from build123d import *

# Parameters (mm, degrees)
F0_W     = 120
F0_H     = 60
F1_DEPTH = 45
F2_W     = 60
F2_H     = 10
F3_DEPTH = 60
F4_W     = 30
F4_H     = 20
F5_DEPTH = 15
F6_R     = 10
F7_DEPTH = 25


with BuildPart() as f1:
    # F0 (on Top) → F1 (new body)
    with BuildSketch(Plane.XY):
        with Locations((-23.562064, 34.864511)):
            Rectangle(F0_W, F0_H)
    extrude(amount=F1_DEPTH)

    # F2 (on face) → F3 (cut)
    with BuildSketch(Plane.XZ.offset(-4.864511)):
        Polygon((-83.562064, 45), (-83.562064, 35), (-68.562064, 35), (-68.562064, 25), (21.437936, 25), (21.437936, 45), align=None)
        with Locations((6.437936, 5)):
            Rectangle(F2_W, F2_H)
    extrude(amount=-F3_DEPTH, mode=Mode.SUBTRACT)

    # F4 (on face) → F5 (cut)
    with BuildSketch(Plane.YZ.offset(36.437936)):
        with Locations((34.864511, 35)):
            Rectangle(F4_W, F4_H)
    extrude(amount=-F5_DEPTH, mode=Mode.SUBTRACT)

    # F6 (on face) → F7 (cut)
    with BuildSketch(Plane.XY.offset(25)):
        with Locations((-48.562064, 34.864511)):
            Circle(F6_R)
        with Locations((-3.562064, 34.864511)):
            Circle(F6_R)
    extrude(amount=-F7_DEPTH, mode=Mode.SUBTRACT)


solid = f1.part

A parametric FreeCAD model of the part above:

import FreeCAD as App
import Part
import Sketcher
from FreeCAD import Vector


def add_polygon(sketch, points):
    """Adds a closed chain of lines whose ends are joined by coincident constraints."""
    first, n = sketch.GeometryCount, len(points)
    for a, b in zip(points, points[1:] + points[:1]):
        sketch.addGeometry(Part.LineSegment(App.Vector(*a, 0), App.Vector(*b, 0)), False)
    for i in range(n):
        sketch.addConstraint(Sketcher.Constraint("Coincident", first + i, 2, first + (i + 1) % n, 1))

doc = App.newDocument("Part")
body = doc.addObject("PartDesign::Body", "Body")

sketch1 = doc.addObject("Sketcher::SketchObject", "Sketch")
body.addObject(sketch1)
sketch1.AttachmentSupport = (doc.XY_Plane, [""])
sketch1.MapMode = "FlatFace"
add_polygon(sketch1, [(-84, 65), (-84, 5), (36, 5), (36, 65)])
sketch1.addConstraint([
    Sketcher.Constraint("Vertical", 0),
    Sketcher.Constraint("Horizontal", 1),
    Sketcher.Constraint("Vertical", 2),
    Sketcher.Constraint("Horizontal", 3),
    Sketcher.Constraint("DistanceX", 1, 1, 1, 2, 120.0),
    Sketcher.Constraint("DistanceY", 0, 2, 0, 1, 60.0),
    Sketcher.Constraint("DistanceY", -1, 1, 0, 2, 4.864511),
    Sketcher.Constraint("DistanceX", 0, 2, -1, 1, 83.562064),
])
pad1 = doc.addObject("PartDesign::Pad", "Pad")
body.addObject(pad1)
pad1.Profile = sketch1
pad1.Length = 45

sketch2 = doc.addObject("Sketcher::SketchObject", "Sketch001")
body.addObject(sketch2)
sketch2.AttachmentSupport = (doc.XZ_Plane, [""])
sketch2.MapMode = "FlatFace"
sketch2.AttachmentOffset = App.Placement(Vector(0, 0, -4.864511), App.Rotation())
add_polygon(sketch2, [(-84, 45), (-84, 35), (-69, 35), (-69, 25), (21, 25), (21, 45)])
add_polygon(sketch2, [(-24, 10), (-24, 0), (36, 0), (36, 10)])
sketch2.addConstraint([
    Sketcher.Constraint("Vertical", 0),
    Sketcher.Constraint("Horizontal", 1),
    Sketcher.Constraint("Vertical", 2),
    Sketcher.Constraint("Horizontal", 3),
    Sketcher.Constraint("Vertical", 4),
    Sketcher.Constraint("Horizontal", 5),
    Sketcher.Constraint("Vertical", 6),
    Sketcher.Constraint("Horizontal", 7),
    Sketcher.Constraint("Vertical", 8),
    Sketcher.Constraint("Horizontal", 9),
    Sketcher.Constraint("PointOnObject", 6, 2, -1),
    Sketcher.Constraint("Equal", 0, 2),
    Sketcher.Constraint("Equal", 2, 6),
    Sketcher.Constraint("DistanceX", 1, 1, 1, 2, 15.0),
    Sketcher.Constraint("DistanceX", 3, 1, 3, 2, 90.0),
    Sketcher.Constraint("DistanceX", 7, 1, 7, 2, 60.0),
    Sketcher.Constraint("DistanceY", 0, 2, 0, 1, 10.0),
    Sketcher.Constraint("DistanceY", -1, 1, 0, 2, 35.0),
    Sketcher.Constraint("DistanceX", 6, 2, 3, 2, 45.0),
    Sketcher.Constraint("DistanceX", 0, 2, -1, 1, 83.562064),
])
pocket1 = doc.addObject("PartDesign::Pocket", "Pocket")
body.addObject(pocket1)
pocket1.Profile = sketch2
pocket1.Length = 60

sketch3 = doc.addObject("Sketcher::SketchObject", "Sketch002")
body.addObject(sketch3)
sketch3.AttachmentSupport = (doc.YZ_Plane, [""])
sketch3.MapMode = "FlatFace"
sketch3.AttachmentOffset = App.Placement(Vector(0, 0, 36.437936), App.Rotation())
add_polygon(sketch3, [(20, 45), (20, 25), (50, 25), (50, 45)])
sketch3.addConstraint([
    Sketcher.Constraint("Vertical", 0),
    Sketcher.Constraint("Horizontal", 1),
    Sketcher.Constraint("Vertical", 2),
    Sketcher.Constraint("Horizontal", 3),
    Sketcher.Constraint("DistanceX", 1, 1, 1, 2, 30.0),
    Sketcher.Constraint("DistanceY", 0, 2, 0, 1, 20.0),
    Sketcher.Constraint("DistanceY", -1, 1, 0, 2, 25.0),
    Sketcher.Constraint("DistanceX", -1, 1, 0, 2, 19.864511),
])
pocket2 = doc.addObject("PartDesign::Pocket", "Pocket001")
body.addObject(pocket2)
pocket2.Profile = sketch3
pocket2.Length = 15

sketch4 = doc.addObject("Sketcher::SketchObject", "Sketch003")
body.addObject(sketch4)
sketch4.AttachmentSupport = (doc.XY_Plane, [""])
sketch4.MapMode = "FlatFace"
sketch4.AttachmentOffset = App.Placement(Vector(0, 0, 25), App.Rotation())
sketch4.addGeometry([
    Part.Circle(Vector(-49, 35, 0), Vector(0, 0, 1), 10),
    Part.Circle(Vector(-4, 35, 0), Vector(0, 0, 1), 10),
], False)
sketch4.addConstraint([
    Sketcher.Constraint("Equal", 0, 1),
    Sketcher.Constraint("Horizontal", 0, 3, 1, 3),
    Sketcher.Constraint("Diameter", 0, 20.0),
    Sketcher.Constraint("DistanceX", 0, 3, 1, 3, 45.0),
    Sketcher.Constraint("DistanceY", -1, 1, 0, 3, 34.864511),
    Sketcher.Constraint("DistanceX", 0, 3, -1, 1, 48.562064),
])
pocket3 = doc.addObject("PartDesign::Pocket", "Pocket002")
body.addObject(pocket3)
pocket3.Profile = sketch4
pocket3.Length = 25

doc.recompute()
